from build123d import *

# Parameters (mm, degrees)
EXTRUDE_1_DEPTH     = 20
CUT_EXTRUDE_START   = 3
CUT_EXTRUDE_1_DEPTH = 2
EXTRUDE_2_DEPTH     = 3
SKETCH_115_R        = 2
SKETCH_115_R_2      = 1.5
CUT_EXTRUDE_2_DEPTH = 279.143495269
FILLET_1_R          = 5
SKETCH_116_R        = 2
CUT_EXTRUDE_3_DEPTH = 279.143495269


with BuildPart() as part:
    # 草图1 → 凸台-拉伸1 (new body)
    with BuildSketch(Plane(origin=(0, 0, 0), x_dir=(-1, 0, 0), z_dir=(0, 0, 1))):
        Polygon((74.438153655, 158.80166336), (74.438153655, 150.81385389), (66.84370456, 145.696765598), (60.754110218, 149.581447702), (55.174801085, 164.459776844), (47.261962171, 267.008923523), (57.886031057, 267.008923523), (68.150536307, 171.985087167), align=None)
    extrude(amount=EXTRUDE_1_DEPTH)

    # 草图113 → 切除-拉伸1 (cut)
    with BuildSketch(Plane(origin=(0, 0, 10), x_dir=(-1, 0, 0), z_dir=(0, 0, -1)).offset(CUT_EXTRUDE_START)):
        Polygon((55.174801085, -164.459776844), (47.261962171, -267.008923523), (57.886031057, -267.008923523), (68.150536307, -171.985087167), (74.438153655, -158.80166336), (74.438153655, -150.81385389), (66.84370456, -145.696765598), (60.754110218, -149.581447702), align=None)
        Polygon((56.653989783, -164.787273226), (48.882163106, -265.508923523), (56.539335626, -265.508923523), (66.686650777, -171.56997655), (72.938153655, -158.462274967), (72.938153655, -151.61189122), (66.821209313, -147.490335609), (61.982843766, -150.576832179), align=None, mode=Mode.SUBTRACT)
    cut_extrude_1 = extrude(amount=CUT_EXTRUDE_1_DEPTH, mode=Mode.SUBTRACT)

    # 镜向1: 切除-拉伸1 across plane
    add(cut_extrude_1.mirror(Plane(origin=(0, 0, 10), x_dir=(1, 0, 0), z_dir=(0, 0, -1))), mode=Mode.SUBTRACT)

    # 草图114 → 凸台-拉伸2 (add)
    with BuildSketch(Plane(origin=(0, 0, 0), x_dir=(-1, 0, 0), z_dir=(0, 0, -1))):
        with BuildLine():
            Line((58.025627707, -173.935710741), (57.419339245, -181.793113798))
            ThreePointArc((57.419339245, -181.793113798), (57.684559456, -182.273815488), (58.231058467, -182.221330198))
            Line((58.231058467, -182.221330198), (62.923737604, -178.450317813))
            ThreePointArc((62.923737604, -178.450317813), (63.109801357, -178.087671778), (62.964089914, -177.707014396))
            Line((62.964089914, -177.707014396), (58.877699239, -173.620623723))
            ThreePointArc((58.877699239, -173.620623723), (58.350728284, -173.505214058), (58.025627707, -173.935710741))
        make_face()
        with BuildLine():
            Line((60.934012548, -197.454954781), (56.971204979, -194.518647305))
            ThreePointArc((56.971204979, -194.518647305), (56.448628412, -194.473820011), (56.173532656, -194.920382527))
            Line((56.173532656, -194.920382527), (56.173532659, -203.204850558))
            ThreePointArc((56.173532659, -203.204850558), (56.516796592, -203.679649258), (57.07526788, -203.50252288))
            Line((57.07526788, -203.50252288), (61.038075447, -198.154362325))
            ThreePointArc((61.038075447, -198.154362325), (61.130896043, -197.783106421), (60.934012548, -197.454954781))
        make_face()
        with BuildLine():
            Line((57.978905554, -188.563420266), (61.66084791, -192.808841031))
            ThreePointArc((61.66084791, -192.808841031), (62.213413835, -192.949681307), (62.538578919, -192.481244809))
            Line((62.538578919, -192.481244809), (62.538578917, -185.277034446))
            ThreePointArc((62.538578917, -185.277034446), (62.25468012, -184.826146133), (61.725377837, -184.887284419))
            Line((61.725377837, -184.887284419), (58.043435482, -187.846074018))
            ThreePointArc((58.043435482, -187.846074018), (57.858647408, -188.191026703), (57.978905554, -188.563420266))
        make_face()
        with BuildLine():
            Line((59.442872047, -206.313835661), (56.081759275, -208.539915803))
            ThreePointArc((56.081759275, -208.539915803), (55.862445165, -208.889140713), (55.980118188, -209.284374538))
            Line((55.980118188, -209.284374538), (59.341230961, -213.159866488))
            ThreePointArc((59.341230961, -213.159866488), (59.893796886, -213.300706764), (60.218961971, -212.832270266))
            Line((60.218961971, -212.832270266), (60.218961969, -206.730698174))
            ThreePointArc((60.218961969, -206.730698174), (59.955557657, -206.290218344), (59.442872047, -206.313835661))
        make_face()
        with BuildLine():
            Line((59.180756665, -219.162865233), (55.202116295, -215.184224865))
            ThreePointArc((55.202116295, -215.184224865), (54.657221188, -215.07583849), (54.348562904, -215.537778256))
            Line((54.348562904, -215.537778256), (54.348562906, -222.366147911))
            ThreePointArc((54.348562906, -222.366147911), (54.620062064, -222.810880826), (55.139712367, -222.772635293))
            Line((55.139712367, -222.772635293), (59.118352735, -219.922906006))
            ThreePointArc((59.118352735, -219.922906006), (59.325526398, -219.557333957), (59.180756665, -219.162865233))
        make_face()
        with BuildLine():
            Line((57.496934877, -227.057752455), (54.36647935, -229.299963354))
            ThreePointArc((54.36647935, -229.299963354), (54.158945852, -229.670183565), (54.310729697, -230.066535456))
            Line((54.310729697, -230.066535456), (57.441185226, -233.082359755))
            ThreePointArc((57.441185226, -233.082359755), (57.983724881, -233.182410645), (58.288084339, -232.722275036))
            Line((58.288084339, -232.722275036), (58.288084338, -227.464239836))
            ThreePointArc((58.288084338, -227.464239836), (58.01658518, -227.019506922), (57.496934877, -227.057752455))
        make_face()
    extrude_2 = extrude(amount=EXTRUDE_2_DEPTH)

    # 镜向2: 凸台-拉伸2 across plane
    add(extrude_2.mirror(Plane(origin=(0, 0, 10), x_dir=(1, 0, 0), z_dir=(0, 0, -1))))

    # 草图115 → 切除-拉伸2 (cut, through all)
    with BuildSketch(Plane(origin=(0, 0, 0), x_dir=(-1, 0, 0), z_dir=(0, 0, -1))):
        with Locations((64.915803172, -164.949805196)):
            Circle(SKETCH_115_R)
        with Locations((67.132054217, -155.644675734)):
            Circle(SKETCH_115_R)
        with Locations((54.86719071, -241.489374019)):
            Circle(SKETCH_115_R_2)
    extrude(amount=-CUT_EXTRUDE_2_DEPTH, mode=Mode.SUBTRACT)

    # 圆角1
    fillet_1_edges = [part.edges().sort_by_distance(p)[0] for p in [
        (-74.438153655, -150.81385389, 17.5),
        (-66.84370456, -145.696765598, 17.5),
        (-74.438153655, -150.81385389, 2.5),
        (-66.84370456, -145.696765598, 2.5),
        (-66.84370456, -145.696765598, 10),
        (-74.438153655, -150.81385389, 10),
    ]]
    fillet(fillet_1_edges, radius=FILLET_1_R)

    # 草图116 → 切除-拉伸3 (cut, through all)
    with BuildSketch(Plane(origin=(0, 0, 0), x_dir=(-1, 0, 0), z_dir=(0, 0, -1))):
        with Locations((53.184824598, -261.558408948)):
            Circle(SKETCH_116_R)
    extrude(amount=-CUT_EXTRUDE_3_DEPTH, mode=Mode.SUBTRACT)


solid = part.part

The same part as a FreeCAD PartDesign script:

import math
import FreeCAD as App
import Part
import Sketcher
from FreeCAD import Vector
Q = App.Units.Quantity


def edges_at(feature, points):
    """Names of the edges that pass closest to the given points."""
    edges = feature.Shape.Edges
    near = lambda p: min(range(len(edges)), key=lambda i: edges[i].distToShape(Part.Vertex(*p))[0])
    return sorted({f"Edge{near(p) + 1}" for p in points})

doc = App.newDocument("Part")
body = doc.addObject("PartDesign::Body", "Body")

# Sketch on XY plane
sketch1 = doc.addObject("Sketcher::SketchObject", "Sketch")
body.addObject(sketch1)
sketch1.AttachmentSupport = (doc.XY_Plane, [""])
sketch1.MapMode = "FlatFace"
sketch1.addGeometry(Part.LineSegment(Vector(-74, -151, 0), Vector(-74, -159, 0)), False)
sketch1.addGeometry(Part.LineSegment(Vector(-74, -159, 0), Vector(-68, -172, 0)), False)
sketch1.addGeometry(Part.LineSegment(Vector(-68, -172, 0), Vector(-58, -267, 0)), False)
sketch1.addGeometry(Part.LineSegment(Vector(-58, -267, 0), Vector(-47, -267, 0)), False)
sketch1.addGeometry(Part.LineSegment(Vector(-47, -267, 0), Vector(-55, -164, 0)), False)
sketch1.addGeometry(Part.LineSegment(Vector(-55, -164, 0), Vector(-61, -150, 0)), False)
sketch1.addGeometry(Part.LineSegment(Vector(-61, -150, 0), Vector(-67, -146, 0)), False)
sketch1.addGeometry(Part.LineSegment(Vector(-67, -146, 0), Vector(-74, -151, 0)), False)
sketch1.addConstraint(Sketcher.Constraint("Coincident", 0, 2, 1, 1))
sketch1.addConstraint(Sketcher.Constraint("Coincident", 1, 2, 2, 1))
sketch1.addConstraint(Sketcher.Constraint("Coincident", 2, 2, 3, 1))
sketch1.addConstraint(Sketcher.Constraint("Coincident", 3, 2, 4, 1))
sketch1.addConstraint(Sketcher.Constraint("Coincident", 4, 2, 5, 1))
sketch1.addConstraint(Sketcher.Constraint("Coincident", 5, 2, 6, 1))
sketch1.addConstraint(Sketcher.Constraint("Coincident", 6, 2, 7, 1))
sketch1.addConstraint(Sketcher.Constraint("Coincident", 7, 2, 0, 1))
sketch1.addConstraint(Sketcher.Constraint("Vertical", 0))
sketch1.addConstraint(Sketcher.Constraint("Horizontal", 3))
sketch1.addConstraint(Sketcher.Constraint("DistanceX", 3, 1, 3, 2, Q("10.624069 mm")))
sketch1.addConstraint(Sketcher.Constraint("DistanceY", 0, 2, 0, 1, Q("7.987809 mm")))
sketch1.addConstraint(Sketcher.Constraint("DistanceX", 4, 2, -1, 1, Q("55.174801 mm")))
sketch1.addConstraint(Sketcher.Constraint("Distance", 5, Q("15.89004 mm")))
sketch1.addConstraint(Sketcher.Constraint("Distance", 6, Q("7.223151 mm")))
sketch1.addConstraint(Sketcher.Constraint("DistanceX", 2, 2, -1, 1, Q("57.886031 mm")))
sketch1.addConstraint(Sketcher.Constraint("DistanceX", 5, 2, -1, 1, Q("60.75411 mm")))
sketch1.addConstraint(Sketcher.Constraint("DistanceY", 2, 2, 0, 2, Q("108.20726 mm")))
sketch1.addConstraint(Sketcher.Constraint("DistanceX", 0, 2, 3, 2, Q("27.176191 mm")))
sketch1.addConstraint(Sketcher.Constraint("DistanceY", 1, 2, 4, 2, Q("7.52531 mm")))
sketch1.addConstraint(Sketcher.Constraint("DistanceX", 0, 2, 6, 2, Q("7.594449 mm")))
sketch1.addConstraint(Sketcher.Constraint("DistanceX", 1, 2, 6, 2, Q("1.306832 mm")))
sketch1.addConstraint(Sketcher.Constraint("DistanceY", 7, 2, 6, 2, Q("5.117088 mm")))
sketch1.addConstraint(Sketcher.Constraint("DistanceY", 0, 2, -1, 1, Q("158.801663 mm")))
pad1 = doc.addObject("PartDesign::Pad", "Pad")
body.addObject(pad1)
pad1.Profile = sketch1
pad1.Length = 20

# Sketch on XY plane
sketch2 = doc.addObject("Sketcher::SketchObject", "Sketch001")
body.addObject(sketch2)
sketch2.AttachmentSupport = (doc.XY_Plane, [""])
sketch2.MapMode = "FlatFace"
sketch2.AttachmentOffset = App.Placement(Vector(0, 0, 7), App.Rotation())
sketch2.addGeometry(Part.LineSegment(Vector(-55, -164, 0), Vector(-47, -267, 0)), False)
sketch2.addGeometry(Part.LineSegment(Vector(-47, -267, 0), Vector(-58, -267, 0)), False)
sketch2.addGeometry(Part.LineSegment(Vector(-58, -267, 0), Vector(-68, -172, 0)), False)
sketch2.addGeometry(Part.LineSegment(Vector(-68, -172, 0), Vector(-74, -159, 0)), False)
sketch2.addGeometry(Part.LineSegment(Vector(-74, -159, 0), Vector(-74, -151, 0)), False)
sketch2.addGeometry(Part.LineSegment(Vector(-74, -151, 0), Vector(-67, -146, 0)), False)
sketch2.addGeometry(Part.LineSegment(Vector(-67, -146, 0), Vector(-61, -150, 0)), False)
sketch2.addGeometry(Part.LineSegment(Vector(-61, -150, 0), Vector(-55, -164, 0)), False)
sketch2.addGeometry(Part.LineSegment(Vector(-49, -266, 0), Vector(-57, -165, 0)), False)
sketch2.addGeometry(Part.LineSegment(Vector(-57, -165, 0), Vector(-62, -151, 0)), False)
sketch2.addGeometry(Part.LineSegment(Vector(-62, -151, 0), Vector(-67, -147, 0)), False)
sketch2.addGeometry(Part.LineSegment(Vector(-67, -147, 0), Vector(-73, -152, 0)), False)
sketch2.addGeometry(Part.LineSegment(Vector(-73, -152, 0), Vector(-73, -158, 0)), False)
sketch2.addGeometry(Part.LineSegment(Vector(-73, -158, 0), Vector(-67, -172, 0)), False)
sketch2.addGeometry(Part.LineSegment(Vector(-67, -172, 0), Vector(-57, -266, 0)), False)
sketch2.addGeometry(Part.LineSegment(Vector(-57, -266, 0), Vector(-49, -266, 0)), False)
sketch2.addConstraint(Sketcher.Constraint("Coincident", 0, 2, 1, 1))
sketch2.addConstraint(Sketcher.Constraint("Coincident", 1, 2, 2, 1))
sketch2.addConstraint(Sketcher.Constraint("Coincident", 2, 2, 3, 1))
sketch2.addConstraint(Sketcher.Constraint("Coincident", 3, 2, 4, 1))
sketch2.addConstraint(Sketcher.Constraint("Coincident", 4, 2, 5, 1))
sketch2.addConstraint(Sketcher.Constraint("Coincident", 5, 2, 6, 1))
sketch2.addConstraint(Sketcher.Constraint("Coincident", 6, 2, 7, 1))
sketch2.addConstraint(Sketcher.Constraint("Coincident", 7, 2, 0, 1))
sketch2.addConstraint(Sketcher.Constraint("Coincident", 8, 2, 9, 1))
sketch2.addConstraint(Sketcher.Constraint("Coincident", 9, 2, 10, 1))
sketch2.addConstraint(Sketcher.Constraint("Coincident", 10, 2, 11, 1))
sketch2.addConstraint(Sketcher.Constraint("Coincident", 11, 2, 12, 1))
sketch2.addConstraint(Sketcher.Constraint("Coincident", 12, 2, 13, 1))
sketch2.addConstraint(Sketcher.Constraint("Coincident", 13, 2, 14, 1))
sketch2.addConstraint(Sketcher.Constraint("Coincident", 14, 2, 15, 1))
sketch2.addConstraint(Sketcher.Constraint("Coincident", 15, 2, 8, 1))
sketch2.addConstraint(Sketcher.Constraint("Horizontal", 1))
sketch2.addConstraint(Sketcher.Constraint("Vertical", 4))
sketch2.addConstraint(Sketcher.Constraint("Vertical", 12))
sketch2.addConstraint(Sketcher.Constraint("Horizontal", 15))
sketch2.addConstraint(Sketcher.Constraint("Parallel", 0, 8))
sketch2.addConstraint(Sketcher.Constraint("Parallel", 7, 9))
sketch2.addConstraint(Sketcher.Constraint("Parallel", 6, 10))
sketch2.addConstraint(Sketcher.Constraint("Parallel", 5, 11))
sketch2.addConstraint(Sketcher.Constraint("Parallel", 3, 13))
sketch2.addConstraint(Sketcher.Constraint("Parallel", 2, 14))
sketch2.addConstraint(Sketcher.Constraint("DistanceX", 4, 2, 11, 2, Q("1.5 mm")))
sketch2.addConstraint(Sketcher.Constraint("DistanceY", 1, 2, 14, 2, Q("1.5 mm")))
sketch2.addConstraint(Sketcher.Constraint("DistanceX", 1, 2, 1, 1, Q("10.624069 mm")))
sketch2.addConstraint(Sketcher.Constraint("DistanceY", 4, 1, 4, 2, Q("7.987809 mm")))
sketch2.addConstraint(Sketcher.Constraint("DistanceX", 7, 2, -1, 1, Q("55.174801 mm")))
sketch2.addConstraint(Sketcher.Constraint("DistanceX", 10, 2, 6, 2, Q("6.067099 mm")))
sketch2.addConstraint(Sketcher.Constraint("DistanceY", 13, 2, 7, 2, Q("7.1102 mm")))
sketch2.addConstraint(Sketcher.Constraint("DistanceY", 13, 2, 12, 2, Q("13.107702 mm")))
sketch2.addConstraint(Sketcher.Constraint("DistanceX", 2, 2, 14, 2, Q("11.611201 mm")))
sketch2.addConstraint(Sketcher.Constraint("DistanceX", 15, 2, 0, 2, Q("1.620201 mm")))
sketch2.addConstraint(Sketcher.Constraint("Distance", 6, Q("7.223151 mm")))
sketch2.addConstraint(Sketcher.Constraint("Distance", 7, Q("15.89004 mm")))
sketch2.addConstraint(Sketcher.Constraint("Distance", 10, Q("5.739011 mm")))
sketch2.addConstraint(Sketcher.Constraint("Distance", 13, Q("14.52216 mm")))
sketch2.addConstraint(Sketcher.Constraint("DistanceX", 15, 1, 15, 2, Q("7.657173 mm")))
sketch2.addConstraint(Sketcher.Constraint("DistanceY", 12, 2, 12, 1, Q("6.850384 mm")))
sketch2.addConstraint(Sketcher.Constraint("DistanceX", 1, 2, -1, 1, Q("57.886031 mm")))
sketch2.addConstraint(Sketcher.Constraint("DistanceX", 6, 2, -1, 1, Q("60.75411 mm")))
sketch2.addConstraint(Sketcher.Constraint("DistanceX", 8, 2, -1, 1, Q("56.65399 mm")))
sketch2.addConstraint(Sketcher.Constraint("DistanceY", 11, 2, -1, 1, Q("151.611891 mm")))
sketch2.addConstraint(Sketcher.Constraint("DistanceX", 13, 2, -1, 1, Q("66.686651 mm")))
sketch2.addConstraint(Sketcher.Constraint("DistanceY", 1, 2, 3, 2, Q("108.20726 mm")))
pocket1 = doc.addObject("PartDesign::Pocket", "Pocket")
body.addObject(pocket1)
pocket1.Profile = sketch2
pocket1.Length = 2
doc.recompute()

datumplane = doc.addObject("PartDesign::Plane", "DatumPlane")
body.addObject(datumplane)
datumplane.AttachmentSupport = (doc.XY_Plane, [""])
datumplane.MapMode = "FlatFace"
datumplane.AttachmentOffset = App.Placement(Vector(0, 0, 10), App.Rotation())
mirrored = doc.addObject("PartDesign::Mirrored", "Mirrored")
body.addObject(mirrored)
mirrored.Originals = [pocket1]
mirrored.MirrorPlane = (datumplane, [""])
body.Tip = mirrored

# Sketch on XY plane
sketch3 = doc.addObject("Sketcher::SketchObject", "Sketch002")
body.addObject(sketch3)
sketch3.AttachmentSupport = (doc.XY_Plane, [""])
sketch3.MapMode = "FlatFace"
sketch3.addGeometry(Part.LineSegment(Vector(-58.03, -173.94, 0), Vector(-57.42, -181.79, 0)), False)
sketch3.addGeometry(Part.ArcOfCircle(Part.Circle(Vector(-57.92, -181.83, 0), Vector(0, 0, 1), 0.5), math.radians(-129), math.radians(4)), False)
sketch3.addGeometry(Part.LineSegment(Vector(-58.23, -182.22, 0), Vector(-62.92, -178.45, 0)), False)
sketch3.addGeometry(Part.ArcOfCircle(Part.Circle(Vector(-62.61, -178.06, 0), Vector(0, 0, 1), 0.5), math.radians(135), math.radians(231)), False)
sketch3.addGeometry(Part.LineSegment(Vector(-62.96, -177.71, 0), Vector(-58.88, -173.62, 0)), False)
sketch3.addGeometry(Part.ArcOfCircle(Part.Circle(Vector(-58.52, -173.97, 0), Vector(0, 0, 1), 0.5), math.radians(4), math.radians(135)), False)
sketch3.addGeometry(Part.LineSegment(Vector(-60.93, -197.45, 0), Vector(-56.97, -194.52, 0)), False)
sketch3.addGeometry(Part.ArcOfCircle(Part.Circle(Vector(-56.67, -194.92, 0), Vector(0, 0, 1), 0.5), math.radians(0), math.radians(127)), False)
sketch3.addGeometry(Part.LineSegment(Vector(-56.17, -194.92, 0), Vector(-56.17, -203.2, 0)), False)
sketch3.addGeometry(Part.ArcOfCircle(Part.Circle(Vector(-56.67, -203.2, 0), Vector(0, 0, 1), 0.5), math.radians(-143), math.radians(0)), False)
sketch3.addGeometry(Part.LineSegment(Vector(-57.08, -203.5, 0), Vector(-61.04, -198.15, 0)), False)
sketch3.addGeometry(Part.ArcOfCircle(Part.Circle(Vector(-60.64, -197.86, 0), Vector(0, 0, 1), 0.5), math.radians(127), math.radians(217)), False)
sketch3.addGeometry(Part.LineSegment(Vector(-57.98, -188.56, 0), Vector(-61.66, -192.81, 0)), False)
sketch3.addGeometry(Part.ArcOfCircle(Part.Circle(Vector(-62.04, -192.48, 0), Vector(0, 0, 1), 0.5), math.radians(180), math.radians(319)), False)
sketch3.addGeometry(Part.LineSegment(Vector(-62.54, -192.48, 0), Vector(-62.54, -185.28, 0)), False)
sketch3.addGeometry(Part.ArcOfCircle(Part.Circle(Vector(-62.04, -185.28, 0), Vector(0, 0, 1), 0.5), math.radians(51), math.radians(180)), False)
sketch3.addGeometry(Part.LineSegment(Vector(-61.73, -184.89, 0), Vector(-58.04, -187.85, 0)), False)
sketch3.addGeometry(Part.ArcOfCircle(Part.Circle(Vector(-58.36, -188.24, 0), Vector(0, 0, 1), 0.5), math.radians(-41), math.radians(51)), False)
sketch3.addGeometry(Part.LineSegment(Vector(-59.44, -206.31, 0), Vector(-56.08, -208.54, 0)), False)
sketch3.addGeometry(Part.ArcOfCircle(Part.Circle(Vector(-56.36, -208.96, 0), Vector(0, 0, 1), 0.5), math.radians(-41), math.radians(56)), False)
sketch3.addGeometry(Part.LineSegment(Vector(-55.98, -209.28, 0), Vector(-59.34, -213.16, 0)), False)
sketch3.addGeometry(Part.ArcOfCircle(Part.Circle(Vector(-59.72, -212.83, 0), Vector(0, 0, 1), 0.5), math.radians(180), math.radians(319)), False)
sketch3.addGeometry(Part.LineSegment(Vector(-60.22, -212.83, 0), Vector(-60.22, -206.73, 0)), False)
sketch3.addGeometry(Part.ArcOfCircle(Part.Circle(Vector(-59.72, -206.73, 0), Vector(0, 0, 1), 0.5), math.radians(56), math.radians(180)), False)
sketch3.addGeometry(Part.LineSegment(Vector(-59.18, -219.16, 0), Vector(-55.2, -215.18, 0)), False)
sketch3.addGeometry(Part.ArcOfCircle(Part.Circle(Vector(-54.85, -215.54, 0), Vector(0, 0, 1), 0.5), math.radians(0), math.radians(135)), False)
sketch3.addGeometry(Part.LineSegment(Vector(-54.35, -215.54, 0), Vector(-54.35, -222.37, 0)), False)
sketch3.addGeometry(Part.ArcOfCircle(Part.Circle(Vector(-54.85, -222.37, 0), Vector(0, 0, 1), 0.5), math.radians(-126), math.radians(0)), False)
sketch3.addGeometry(Part.LineSegment(Vector(-55.14, -222.77, 0), Vector(-59.12, -219.92, 0)), False)
sketch3.addGeometry(Part.ArcOfCircle(Part.Circle(Vector(-58.83, -219.52, 0), Vector(0, 0, 1), 0.5), math.radians(135), math.radians(234)), False)
sketch3.addGeometry(Part.LineSegment(Vector(-57.5, -227.06, 0), Vector(-54.37, -229.3, 0)), False)
sketch3.addGeometry(Part.ArcOfCircle(Part.Circle(Vector(-54.66, -229.71, 0), Vector(0, 0, 1), 0.5), math.radians(-46), math.radians(54)), False)
sketch3.addGeometry(Part.LineSegment(Vector(-54.31, -230.07, 0), Vector(-57.44, -233.08, 0)), False)
sketch3.addGeometry(Part.ArcOfCircle(Part.Circle(Vector(-57.79, -232.72, 0), Vector(0, 0, 1), 0.5), math.radians(180), math.radians(314)), False)
sketch3.addGeometry(Part.LineSegment(Vector(-58.29, -232.72, 0), Vector(-58.29, -227.46, 0)), False)
sketch3.addGeometry(Part.ArcOfCircle(Part.Circle(Vector(-57.79, -227.46, 0), Vector(0, 0, 1), 0.5), math.radians(54), math.radians(180)), False)
sketch3.addConstraint(Sketcher.Constraint("Tangent", 0, 2, 1, 2))
sketch3.addConstraint(Sketcher.Constraint("Tangent", 1, 1, 2, 1))
sketch3.addConstraint(Sketcher.Constraint("Tangent", 2, 2, 3, 2))
sketch3.addConstraint(Sketcher.Constraint("Tangent", 3, 1, 4, 1))
sketch3.addConstraint(Sketcher.Constraint("Tangent", 4, 2, 5, 2))
sketch3.addConstraint(Sketcher.Constraint("Tangent", 5, 1, 0, 1))
sketch3.addConstraint(Sketcher.Constraint("Tangent", 6, 2, 7, 2))
sketch3.addConstraint(Sketcher.Constraint("Tangent", 7, 1, 8, 1))
sketch3.addConstraint(Sketcher.Constraint("Tangent", 8, 2, 9, 2))
sketch3.addConstraint(Sketcher.Constraint("Tangent", 9, 1, 10, 1))
sketch3.addConstraint(Sketcher.Constraint("Tangent", 10, 2, 11, 2))
sketch3.addConstraint(Sketcher.Constraint("Tangent", 11, 1, 6, 1))
sketch3.addConstraint(Sketcher.Constraint("Tangent", 12, 2, 13, 2))
sketch3.addConstraint(Sketcher.Constraint("Tangent", 13, 1, 14, 1))
sketch3.addConstraint(Sketcher.Constraint("Tangent", 14, 2, 15, 2))
sketch3.addConstraint(Sketcher.Constraint("Tangent", 15, 1, 16, 1))
sketch3.addConstraint(Sketcher.Constraint("Tangent", 16, 2, 17, 2))
sketch3.addConstraint(Sketcher.Constraint("Tangent", 17, 1, 12, 1))
sketch3.addConstraint(Sketcher.Constraint("Tangent", 18, 2, 19, 2))
sketch3.addConstraint(Sketcher.Constraint("Tangent", 19, 1, 20, 1))
sketch3.addConstraint(Sketcher.Constraint("Tangent", 20, 2, 21, 2))
sketch3.addConstraint(Sketcher.Constraint("Tangent", 21, 1, 22, 1))
sketch3.addConstraint(Sketcher.Constraint("Tangent", 22, 2, 23, 2))
sketch3.addConstraint(Sketcher.Constraint("Tangent", 23, 1, 18, 1))
sketch3.addConstraint(Sketcher.Constraint("Tangent", 24, 2, 25, 2))
sketch3.addConstraint(Sketcher.Constraint("Tangent", 25, 1, 26, 1))
sketch3.addConstraint(Sketcher.Constraint("Tangent", 26, 2, 27, 2))
sketch3.addConstraint(Sketcher.Constraint("Tangent", 27, 1, 28, 1))
sketch3.addConstraint(Sketcher.Constraint("Tangent", 28, 2, 29, 2))
sketch3.addConstraint(Sketcher.Constraint("Tangent", 29, 1, 24, 1))
sketch3.addConstraint(Sketcher.Constraint("Tangent", 30, 2, 31, 2))
sketch3.addConstraint(Sketcher.Constraint("Tangent", 31, 1, 32, 1))
sketch3.addConstraint(Sketcher.Constraint("Tangent", 32, 2, 33, 2))
sketch3.addConstraint(Sketcher.Constraint("Tangent", 33, 1, 34, 1))
sketch3.addConstraint(Sketcher.Constraint("Tangent", 34, 2, 35, 2))
sketch3.addConstraint(Sketcher.Constraint("Tangent", 35, 1, 30, 1))
sketch3.addConstraint(Sketcher.Constraint("Vertical", 8))
sketch3.addConstraint(Sketcher.Constraint("Vertical", 14))
sketch3.addConstraint(Sketcher.Constraint("Vertical", 22))
sketch3.addConstraint(Sketcher.Constraint("Vertical", 26))
sketch3.addConstraint(Sketcher.Constraint("Vertical", 34))
sketch3.addConstraint(Sketcher.Constraint("Equal", 1, 3))
sketch3.addConstraint(Sketcher.Constraint("Equal", 3, 5))
sketch3.addConstraint(Sketcher.Constraint("Equal", 5, 7))
sketch3.addConstraint(Sketcher.Constraint("Equal", 7, 9))
sketch3.addConstraint(Sketcher.Constraint("Equal", 9, 11))
sketch3.addConstraint(Sketcher.Constraint("Equal", 11, 13))
sketch3.addConstraint(Sketcher.Constraint("Equal", 13, 15))
sketch3.addConstraint(Sketcher.Constraint("Equal", 15, 17))
sketch3.addConstraint(Sketcher.Constraint("Equal", 17, 19))
sketch3.addConstraint(Sketcher.Constraint("Equal", 19, 21))
sketch3.addConstraint(Sketcher.Constraint("Equal", 21, 23))
sketch3.addConstraint(Sketcher.Constraint("Equal", 23, 25))
sketch3.addConstraint(Sketcher.Constraint("Equal", 25, 27))
sketch3.addConstraint(Sketcher.Constraint("Equal", 27, 29))
sketch3.addConstraint(Sketcher.Constraint("Equal", 29, 31))
sketch3.addConstraint(Sketcher.Constraint("Equal", 31, 33))
sketch3.addConstraint(Sketcher.Constraint("Equal", 33, 35))
sketch3.addConstraint(Sketcher.Constraint("Perpendicular", 6, 10))
sketch3.addConstraint(Sketcher.Constraint("Parallel", 2, 16))
sketch3.addConstraint(Sketcher.Constraint("Parallel", 12, 20))
sketch3.addConstraint(Sketcher.Constraint("Parallel", 4, 24))
sketch3.addConstraint(Sketcher.Constraint("Parallel", 28, 30))
sketch3.addConstraint(Sketcher.Constraint("Radius", 1, Q("0.5 mm")))
sketch3.addConstraint(Sketcher.Constraint("Angle", 4, Q("45 deg")))
sketch3.addConstraint(Sketcher.Constraint("DistanceY", 25, 3, 19, 3, Q("6.581 mm")))
sketch3.addConstraint(Sketcher.Constraint("DistanceY", 8, 2, 8, 1, Q("8.284468 mm")))
sketch3.addConstraint(Sketcher.Constraint("DistanceY", 14, 1, 14, 2, Q("7.20421 mm")))
sketch3.addConstraint(Sketcher.Constraint("DistanceY", 26, 2, 26, 1, Q("6.82837 mm")))
sketch3.addConstraint(Sketcher.Constraint("DistanceY", 23, 3, -1, 1, Q("206.730698 mm")))
sketch3.addConstraint(Sketcher.Constraint("DistanceX", 4, 2, -1, 1, Q("58.877699 mm")))
sketch3.addConstraint(Sketcher.Constraint("DistanceX", 21, 3, 25, 3, Q("4.870399 mm")))
sketch3.addConstraint(Sketcher.Constraint("DistanceX", 1, 1, 1, 3, Q("0.313201 mm")))
sketch3.addConstraint(Sketcher.Constraint("DistanceX", 2, 2, 0, 2, Q("5.504398 mm")))
sketch3.addConstraint(Sketcher.Constraint("DistanceX", 31, 3, 31, 1, Q("0.346899 mm")))
sketch3.addConstraint(Sketcher.Constraint("DistanceY", 31, 1, 27, 1, Q("7.2939 mm")))
sketch3.addConstraint(Sketcher.Constraint("DistanceY", 31, 3, 35, 1, Q("2.648698 mm")))
sketch3.addConstraint(Sketcher.Constraint("Distance", 0, Q("7.880759 mm")))
sketch3.addConstraint(Sketcher.Constraint("Distance", 18, Q("4.03144 mm")))
sketch3.addConstraint(Sketcher.Constraint("Distance", 28, Q("4.893929 mm")))
sketch3.addConstraint(Sketcher.Constraint("DistanceY", 22, 1, 22, 2, Q("6.101572 mm")))
sketch3.addConstraint(Sketcher.Constraint("DistanceY", 1, 3, -1, 1, Q("181.83158 mm")))
sketch3.addConstraint(Sketcher.Constraint("DistanceY", 9, 3, -1, 1, Q("203.204851 mm")))
sketch3.addConstraint(Sketcher.Constraint("DistanceX", 11, 3, -1, 1, Q("60.63634 mm")))
sketch3.addConstraint(Sketcher.Constraint("DistanceY", 11, 3, -1, 1, Q("197.85669 mm")))
sketch3.addConstraint(Sketcher.Constraint("DistanceX", 13, 3, -1, 1, Q("62.038579 mm")))
sketch3.addConstraint(Sketcher.Constraint("DistanceX", 19, 3, -1, 1, Q("56.357849 mm")))
sketch3.addConstraint(Sketcher.Constraint("DistanceY", 19, 3, -1, 1, Q("208.956778 mm")))
sketch3.addConstraint(Sketcher.Constraint("DistanceX", 31, 3, -1, 1, Q("54.657629 mm")))
sketch3.addConstraint(Sketcher.Constraint("DistanceY", 12, 2, -1, 1, Q("192.808841 mm")))
pad2 = doc.addObject("PartDesign::Pad", "Pad001")
body.addObject(pad2)
pad2.Profile = sketch3
pad2.Length = 3
pad2.Reversed = True
doc.recompute()

datumplane2 = doc.addObject("PartDesign::Plane", "DatumPlane001")
body.addObject(datumplane2)
datumplane2.AttachmentSupport = (doc.XY_Plane, [""])
datumplane2.MapMode = "FlatFace"
datumplane2.AttachmentOffset = App.Placement(Vector(0, 0, 10), App.Rotation())
mirrored2 = doc.addObject("PartDesign::Mirrored", "Mirrored001")
body.addObject(mirrored2)
mirrored2.Originals = [pad2]
mirrored2.MirrorPlane = (datumplane2, [""])
body.Tip = mirrored2

# Sketch on XY plane
sketch4 = doc.addObject("Sketcher::SketchObject", "Sketch003")
body.addObject(sketch4)
sketch4.AttachmentSupport = (doc.XY_Plane, [""])
sketch4.MapMode = "FlatFace"
sketch4.addGeometry(Part.Circle(Vector(-64.9, -164.9, 0), Vector(0, 0, 1), 2), False)
sketch4.addGeometry(Part.Circle(Vector(-67.1, -155.6, 0), Vector(0, 0, 1), 2), False)
sketch4.addGeometry(Part.Circle(Vector(-54.9, -241.5, 0), Vector(0, 0, 1), 1.5), False)
sketch4.addConstraint(Sketcher.Constraint("Equal", 0, 1))
sketch4.addConstraint(Sketcher.Constraint("Diameter", 0, Q("4 mm")))
sketch4.addConstraint(Sketcher.Constraint("Diameter", 2, Q("3 mm")))
sketch4.addConstraint(Sketcher.Constraint("DistanceY", 2, 3, 1, 3, Q("85.844698 mm")))
sketch4.addConstraint(Sketcher.Constraint("DistanceX", 2, 3, -1, 1, Q("54.867191 mm")))
sketch4.addConstraint(Sketcher.Constraint("DistanceX", 1, 3, 0, 3, Q("2.216251 mm")))
sketch4.addConstraint(Sketcher.Constraint("DistanceY", 0, 3, 1, 3, Q("9.305129 mm")))
sketch4.addConstraint(Sketcher.Constraint("DistanceX", 0, 3, -1, 1, Q("64.915803 mm")))
sketch4.addConstraint(Sketcher.Constraint("DistanceY", 0, 3, -1, 1, Q("164.949805 mm")))
pocket2 = doc.addObject("PartDesign::Pocket", "Pocket001")
body.addObject(pocket2)
pocket2.Profile = sketch4
pocket2.Type = "ThroughAll"
pocket2.Reversed = True
doc.recompute()

fillet = doc.addObject("PartDesign::Fillet", "Fillet")
body.addObject(fillet)
fillet.Base = (pocket2, edges_at(pocket2, [
    (-74.438, -150.814, 17.5),
    (-66.844, -145.697, 17.5),
    (-74.438, -150.814, 2.5),
    (-66.844, -145.697, 2.5),
    (-66.844, -145.697, 10),
    (-74.438, -150.814, 10),
]))
fillet.Radius = 5

# Sketch on XY plane
sketch5 = doc.addObject("Sketcher::SketchObject", "Sketch004")
body.addObject(sketch5)
sketch5.AttachmentSupport = (doc.XY_Plane, [""])
sketch5.MapMode = "FlatFace"
sketch5.addGeometry(Part.Circle(Vector(-53.2, -261.6, 0), Vector(0, 0, 1), 2), False)
sketch5.addConstraint(Sketcher.Constraint("Diameter", 0, Q("4 mm")))
sketch5.addConstraint(Sketcher.Constraint("DistanceY", 0, 3, -1, 1, Q("261.558409 mm")))
sketch5.addConstraint(Sketcher.Constraint("DistanceX", 0, 3, -1, 1, Q("53.184825 mm")))
pocket3 = doc.addObject("PartDesign::Pocket", "Pocket002")
body.addObject(pocket3)
pocket3.Profile = sketch5
pocket3.Type = "ThroughAll"
pocket3.Reversed = True

doc.recompute()
